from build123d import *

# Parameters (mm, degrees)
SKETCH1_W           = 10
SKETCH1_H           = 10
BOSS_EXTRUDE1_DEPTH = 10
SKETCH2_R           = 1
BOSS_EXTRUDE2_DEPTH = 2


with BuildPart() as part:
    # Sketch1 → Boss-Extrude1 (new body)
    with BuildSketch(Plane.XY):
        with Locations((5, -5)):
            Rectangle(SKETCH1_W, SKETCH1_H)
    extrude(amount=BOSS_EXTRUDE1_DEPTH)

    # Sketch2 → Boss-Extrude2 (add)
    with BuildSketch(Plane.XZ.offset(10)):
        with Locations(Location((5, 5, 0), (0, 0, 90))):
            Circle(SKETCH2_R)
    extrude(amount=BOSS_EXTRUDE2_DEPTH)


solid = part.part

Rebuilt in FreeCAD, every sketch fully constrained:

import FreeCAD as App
import Part
import Sketcher

V = App.Vector
Q = App.Units.Quantity


def add_polygon(sketch, points):
    """Adds a closed chain of lines whose ends are joined by coincident constraints."""
    first, n = sketch.GeometryCount, len(points)
    for a, b in zip(points, points[1:] + points[:1]):
        sketch.addGeometry(Part.LineSegment(App.Vector(*a, 0), App.Vector(*b, 0)), False)
    for i in range(n):
        sketch.addConstraint(Sketcher.Constraint("Coincident", first + i, 2, first + (i + 1) % n, 1))

doc = App.newDocument("Part")
body = doc.addObject("PartDesign::Body", "Body")

sketch1 = body.newObject("Sketcher::SketchObject", "Sketch")
sketch1.AttachmentSupport = (doc.getObject("XY_Plane"), [""])
sketch1.MapMode = "FlatFace"
add_polygon(sketch1, [(0, 0), (0, -10), (10, -10), (10, 0)])
sketch1.addConstraint([
    Sketcher.Constraint("Vertical", 0),
    Sketcher.Constraint("Horizontal", 1),
    Sketcher.Constraint("Vertical", 2),
    Sketcher.Constraint("Horizontal", 3),
    Sketcher.Constraint("Coincident", 3, 2, -1, 1),
    Sketcher.Constraint("Equal", 3, 0),
    Sketcher.Constraint("DistanceX", 1, 1, 1, 2, Q("10 mm")),
])
pad1 = body.newObject("PartDesign::Pad", "Pad")
pad1.Profile = sketch1
pad1.Length = 10

sketch2 = body.newObject("Sketcher::SketchObject", "Sketch001")
sketch2.AttachmentSupport = (doc.getObject("XZ_Plane"), [""])
sketch2.MapMode = "FlatFace"
sketch2.AttachmentOffset = App.Placement(V(0, 0, 10), App.Rotation())
sketch2.addGeometry(Part.Circle(V(5, 5, 0), V(0, 0, 1), 1), False)
sketch2.addConstraint([
    Sketcher.Constraint("Diameter", 0, Q("2 mm")),
    Sketcher.Constraint("DistanceX", -1, 1, 0, 3, Q("5 mm")),
    Sketcher.Constraint("DistanceY", -1, 1, 0, 3, Q("5 mm")),
])
pad2 = body.newObject("PartDesign::Pad", "Pad001")
pad2.Profile = sketch2
pad2.Length = 2

doc.recompute()
